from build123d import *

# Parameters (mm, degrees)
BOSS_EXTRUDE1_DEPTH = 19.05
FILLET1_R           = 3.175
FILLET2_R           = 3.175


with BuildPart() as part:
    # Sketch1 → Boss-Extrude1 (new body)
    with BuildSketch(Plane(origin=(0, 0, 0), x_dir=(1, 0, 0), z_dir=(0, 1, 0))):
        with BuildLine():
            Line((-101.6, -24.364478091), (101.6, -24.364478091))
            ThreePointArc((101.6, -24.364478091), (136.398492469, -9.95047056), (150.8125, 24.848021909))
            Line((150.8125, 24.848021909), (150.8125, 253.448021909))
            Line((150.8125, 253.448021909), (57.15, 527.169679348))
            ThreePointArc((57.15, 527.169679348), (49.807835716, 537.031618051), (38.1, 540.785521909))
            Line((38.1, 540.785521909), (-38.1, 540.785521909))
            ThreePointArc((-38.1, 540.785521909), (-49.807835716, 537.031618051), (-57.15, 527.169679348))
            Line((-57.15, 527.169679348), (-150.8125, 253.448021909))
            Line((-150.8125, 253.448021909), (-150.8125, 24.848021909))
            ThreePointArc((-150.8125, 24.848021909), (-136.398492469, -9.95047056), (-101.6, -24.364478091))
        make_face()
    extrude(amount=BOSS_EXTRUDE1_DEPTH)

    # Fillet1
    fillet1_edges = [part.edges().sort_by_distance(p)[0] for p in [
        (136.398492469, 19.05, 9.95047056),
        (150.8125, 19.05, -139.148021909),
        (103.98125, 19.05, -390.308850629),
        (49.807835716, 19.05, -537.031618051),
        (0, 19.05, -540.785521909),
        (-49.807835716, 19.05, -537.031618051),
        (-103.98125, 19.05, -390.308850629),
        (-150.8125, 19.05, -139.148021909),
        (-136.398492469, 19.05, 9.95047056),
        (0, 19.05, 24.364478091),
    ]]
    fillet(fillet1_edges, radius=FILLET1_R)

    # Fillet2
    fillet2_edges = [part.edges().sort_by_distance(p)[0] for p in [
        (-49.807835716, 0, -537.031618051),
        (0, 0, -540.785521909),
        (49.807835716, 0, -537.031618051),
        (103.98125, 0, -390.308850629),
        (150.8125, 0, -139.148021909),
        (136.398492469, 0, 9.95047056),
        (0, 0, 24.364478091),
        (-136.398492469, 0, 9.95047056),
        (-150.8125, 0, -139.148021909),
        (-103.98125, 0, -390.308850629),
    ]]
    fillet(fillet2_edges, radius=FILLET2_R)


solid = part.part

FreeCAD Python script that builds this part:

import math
import FreeCAD as App
import Part
import Sketcher

V = App.Vector
Q = App.Units.Quantity


def edges_at(feature, points):
    """Names of the edges that pass closest to the given points."""
    edges = feature.Shape.Edges
    near = lambda p: min(range(len(edges)), key=lambda i: edges[i].distToShape(Part.Vertex(*p))[0])
    return sorted({f"Edge{near(p) + 1}" for p in points})

doc = App.newDocument("Part")
body = doc.addObject("PartDesign::Body", "Body")

sketch1 = body.newObject("Sketcher::SketchObject", "Sketch")
sketch1.AttachmentSupport = (doc.getObject("XZ_Plane"), [""])
sketch1.MapMode = "FlatFace"
sketch1.addGeometry(Part.LineSegment(V(-101.6, 24.364478, 0), V(101.6, 24.364478, 0)), False)
sketch1.addGeometry(Part.ArcOfCircle(Part.Circle(V(101.6, -24.848022, 0), V(0, 0, 1), 49.2125), math.radians(0), math.radians(90)), False)
sketch1.addGeometry(Part.LineSegment(V(150.8125, -24.848022, 0), V(150.8125, -253.448022, 0)), False)
sketch1.addGeometry(Part.LineSegment(V(150.8125, -253.448022, 0), V(57.15, -527.169679, 0)), False)
sketch1.addGeometry(Part.ArcOfCircle(Part.Circle(V(38.1, -520.651121, 0), V(0, 0, 1), 20.134401), math.radians(-90), math.radians(-18.89)), False)
sketch1.addGeometry(Part.LineSegment(V(38.1, -540.785522, 0), V(-38.1, -540.785522, 0)), False)
sketch1.addGeometry(Part.ArcOfCircle(Part.Circle(V(-38.1, -520.651121, 0), V(0, 0, 1), 20.134401), math.radians(-161.11), math.radians(-90)), False)
sketch1.addGeometry(Part.LineSegment(V(-57.15, -527.169679, 0), V(-150.8125, -253.448022, 0)), False)
sketch1.addGeometry(Part.LineSegment(V(-150.8125, -253.448022, 0), V(-150.8125, -24.848022, 0)), False)
sketch1.addGeometry(Part.ArcOfCircle(Part.Circle(V(-101.6, -24.848022, 0), V(0, 0, 1), 49.2125), math.radians(90), math.radians(180)), False)
sketch1.addConstraint(Sketcher.Constraint("Tangent", 0, 2, 1, 2))
sketch1.addConstraint(Sketcher.Constraint("Tangent", 1, 1, 2, 1))
sketch1.addConstraint(Sketcher.Constraint("Coincident", 2, 2, 3, 1))
sketch1.addConstraint(Sketcher.Constraint("Tangent", 3, 2, 4, 2))
sketch1.addConstraint(Sketcher.Constraint("Tangent", 4, 1, 5, 1))
sketch1.addConstraint(Sketcher.Constraint("Tangent", 5, 2, 6, 2))
sketch1.addConstraint(Sketcher.Constraint("Tangent", 6, 1, 7, 1))
sketch1.addConstraint(Sketcher.Constraint("Coincident", 7, 2, 8, 1))
sketch1.addConstraint(Sketcher.Constraint("Tangent", 8, 2, 9, 2))
sketch1.addConstraint(Sketcher.Constraint("Tangent", 9, 1, 0, 1))
sketch1.addConstraint(Sketcher.Constraint("Horizontal", 0))
sketch1.addConstraint(Sketcher.Constraint("Vertical", 2))
sketch1.addConstraint(Sketcher.Constraint("Horizontal", 5))
sketch1.addConstraint(Sketcher.Constraint("Vertical", 8))
sketch1.addConstraint(Sketcher.Constraint("Equal", 4, 6))
sketch1.addConstraint(Sketcher.Constraint("Equal", 1, 9))
sketch1.addConstraint(Sketcher.Constraint("Symmetric", 3, 2, 6, 1, -2))
sketch1.addConstraint(Sketcher.Constraint("Horizontal", 2, 2, 7, 2))
sketch1.addConstraint(Sketcher.Constraint("DistanceX", 0, 1, 0, 2, Q("8 in")))
sketch1.addConstraint(Sketcher.Constraint("DistanceX", 5, 2, 5, 1, Q("3 in")))
sketch1.addConstraint(Sketcher.Constraint("DistanceY", 2, 2, 2, 1, Q("9 in")))
sketch1.addConstraint(Sketcher.Constraint("Radius", 1, Q("1.9375 in")))
sketch1.addConstraint(Sketcher.Constraint("DistanceX", 6, 1, 3, 2, Q("4.5 in")))
sketch1.addConstraint(Sketcher.Constraint("Angle", 3, Q("-108.89 deg")))
sketch1.addConstraint(Sketcher.Constraint("DistanceY", 1, 3, -1, 1, 24.848022))
pad1 = body.newObject("PartDesign::Pad", "Pad")
pad1.Profile = sketch1
pad1.Length = Q("0.75 in")
pad1.Reversed = True
doc.recompute()

fillet = body.newObject("PartDesign::Fillet", "Fillet")
fillet.Base = (pad1, edges_at(pad1, [
    (136.398, 19.05, 9.95),
    (150.812, 19.05, -139.148),
    (103.981, 19.05, -390.309),
    (49.808, 19.05, -537.032),
    (0, 19.05, -540.786),
    (-49.808, 19.05, -537.032),
    (-103.981, 19.05, -390.309),
    (-150.812, 19.05, -139.148),
    (-136.398, 19.05, 9.95),
    (0, 19.05, 24.364),
]))
fillet.Radius = Q("0.125 in")
doc.recompute()

fillet2 = body.newObject("PartDesign::Fillet", "Fillet001")
fillet2.Base = (fillet, edges_at(fillet, [
    (-49.808, 0, -537.032),
    (0, 0, -540.786),
    (49.808, 0, -537.032),
    (103.981, 0, -390.309),
    (150.812, 0, -139.148),
    (136.398, 0, 9.95),
    (0, 0, 24.364),
    (-136.398, 0, 9.95),
    (-150.812, 0, -139.148),
    (-103.981, 0, -390.309),
]))
fillet2.Radius = Q("0.125 in")

doc.recompute()
